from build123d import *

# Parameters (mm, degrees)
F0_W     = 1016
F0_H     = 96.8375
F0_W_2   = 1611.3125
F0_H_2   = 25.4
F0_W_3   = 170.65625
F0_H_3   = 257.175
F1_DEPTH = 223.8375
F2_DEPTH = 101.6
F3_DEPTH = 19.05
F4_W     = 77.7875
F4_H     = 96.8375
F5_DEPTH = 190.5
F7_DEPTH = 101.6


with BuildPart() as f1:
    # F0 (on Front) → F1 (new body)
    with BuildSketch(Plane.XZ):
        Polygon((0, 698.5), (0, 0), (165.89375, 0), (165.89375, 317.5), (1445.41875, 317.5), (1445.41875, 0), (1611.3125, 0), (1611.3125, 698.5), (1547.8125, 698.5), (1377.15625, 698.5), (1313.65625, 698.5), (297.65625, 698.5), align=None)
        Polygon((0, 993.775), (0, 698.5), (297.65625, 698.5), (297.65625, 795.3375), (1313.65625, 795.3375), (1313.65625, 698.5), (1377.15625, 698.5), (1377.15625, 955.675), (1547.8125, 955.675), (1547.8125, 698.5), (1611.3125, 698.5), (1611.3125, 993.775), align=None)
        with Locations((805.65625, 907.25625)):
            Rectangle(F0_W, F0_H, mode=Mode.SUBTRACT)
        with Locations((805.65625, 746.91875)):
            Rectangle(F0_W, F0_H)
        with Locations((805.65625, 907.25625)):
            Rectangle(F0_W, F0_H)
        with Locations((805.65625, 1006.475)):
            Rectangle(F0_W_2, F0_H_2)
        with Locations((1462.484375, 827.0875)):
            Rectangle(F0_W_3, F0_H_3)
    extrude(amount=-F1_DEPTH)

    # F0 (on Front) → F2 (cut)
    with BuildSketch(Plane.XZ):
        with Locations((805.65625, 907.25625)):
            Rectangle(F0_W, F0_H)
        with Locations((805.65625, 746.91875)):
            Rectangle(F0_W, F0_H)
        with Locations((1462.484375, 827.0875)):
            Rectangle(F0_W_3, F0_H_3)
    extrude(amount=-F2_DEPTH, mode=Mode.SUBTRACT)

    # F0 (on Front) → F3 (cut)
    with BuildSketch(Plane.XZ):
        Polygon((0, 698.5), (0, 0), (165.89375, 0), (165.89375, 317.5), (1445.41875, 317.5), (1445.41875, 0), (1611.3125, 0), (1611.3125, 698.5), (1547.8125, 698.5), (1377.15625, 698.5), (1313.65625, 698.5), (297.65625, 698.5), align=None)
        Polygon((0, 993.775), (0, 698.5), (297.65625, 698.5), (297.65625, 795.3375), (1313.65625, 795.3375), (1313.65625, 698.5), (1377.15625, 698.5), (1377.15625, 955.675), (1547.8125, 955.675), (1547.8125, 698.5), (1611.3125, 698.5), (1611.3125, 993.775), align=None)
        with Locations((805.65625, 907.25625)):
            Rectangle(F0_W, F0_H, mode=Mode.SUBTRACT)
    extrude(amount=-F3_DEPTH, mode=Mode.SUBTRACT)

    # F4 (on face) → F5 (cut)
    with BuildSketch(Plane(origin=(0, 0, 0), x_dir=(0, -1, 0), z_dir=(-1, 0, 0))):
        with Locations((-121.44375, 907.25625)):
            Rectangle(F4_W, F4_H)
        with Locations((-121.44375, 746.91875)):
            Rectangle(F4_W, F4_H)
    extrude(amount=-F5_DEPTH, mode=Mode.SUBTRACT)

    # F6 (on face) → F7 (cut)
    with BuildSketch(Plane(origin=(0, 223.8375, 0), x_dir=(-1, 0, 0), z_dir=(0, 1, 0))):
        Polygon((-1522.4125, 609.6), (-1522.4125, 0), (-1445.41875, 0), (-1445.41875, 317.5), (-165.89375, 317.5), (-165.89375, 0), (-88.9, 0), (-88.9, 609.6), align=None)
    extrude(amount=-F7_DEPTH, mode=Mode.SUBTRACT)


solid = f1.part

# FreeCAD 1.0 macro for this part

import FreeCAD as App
import Part
import Sketcher
from FreeCAD import Vector
Q = App.Units.Quantity

doc = App.newDocument("Part")
body = doc.addObject("PartDesign::Body", "Body")

# Sketch on XZ plane
sketch1 = body.newObject("Sketcher::SketchObject", "Sketch")
sketch1.AttachmentSupport = (doc.getObject("XZ_Plane"), [""])
sketch1.MapMode = "FlatFace"
sketch1.addGeometry([
    Part.LineSegment(Vector(0, 0, 0), Vector(166, 0, 0)),  # 0
    Part.LineSegment(Vector(166, 0, 0), Vector(166, 318, 0)),  # 1
    Part.LineSegment(Vector(166, 318, 0), Vector(1445, 318, 0)),  # 2
    Part.LineSegment(Vector(1445, 318, 0), Vector(1445, 0, 0)),  # 3
    Part.LineSegment(Vector(1445, 0, 0), Vector(1611, 0, 0)),  # 4
    Part.LineSegment(Vector(1611, 0, 0), Vector(1611, 1019, 0)),  # 5
    Part.LineSegment(Vector(1611, 1019, 0), Vector(0, 1019, 0)),  # 6
    Part.LineSegment(Vector(0, 1019, 0), Vector(0, 0, 0)),  # 7
], False)
sketch1.addConstraint([
    Sketcher.Constraint("Coincident", 0, 2, 1, 1),
    Sketcher.Constraint("Coincident", 1, 2, 2, 1),
    Sketcher.Constraint("Coincident", 2, 2, 3, 1),
    Sketcher.Constraint("Coincident", 3, 2, 4, 1),
    Sketcher.Constraint("Coincident", 4, 2, 5, 1),
    Sketcher.Constraint("Coincident", 5, 2, 6, 1),
    Sketcher.Constraint("Coincident", 6, 2, 7, 1),
    Sketcher.Constraint("Coincident", 7, 2, 0, 1),
    Sketcher.Constraint("Horizontal", 0),
    Sketcher.Constraint("Vertical", 1),
    Sketcher.Constraint("Horizontal", 2),
    Sketcher.Constraint("Vertical", 3),
    Sketcher.Constraint("Horizontal", 4),
    Sketcher.Constraint("Vertical", 5),
    Sketcher.Constraint("Horizontal", 6),
    Sketcher.Constraint("Vertical", 7),
    Sketcher.Constraint("Coincident", 7, 2, -1, 1),
    Sketcher.Constraint("PointOnObject", 3, 2, -1),
    Sketcher.Constraint("Equal", 0, 4),
    Sketcher.Constraint("DistanceY", 1, 1, 1, 2, Q("12.5 in")),
    Sketcher.Constraint("DistanceX", 0, 1, 0, 2, Q("6.53125 in")),
    Sketcher.Constraint("DistanceX", 2, 1, 2, 2, Q("50.375 in")),
    Sketcher.Constraint("DistanceY", 5, 1, 5, 2, Q("40.125 in")),
])
pad1 = body.newObject("PartDesign::Pad", "Pad")
pad1.Profile = sketch1
pad1.Length = Q("8.8125 in")
pad1.Reversed = True

# Sketch on XZ plane
sketch2 = body.newObject("Sketcher::SketchObject", "Sketch001")
sketch2.AttachmentSupport = (doc.getObject("XZ_Plane"), [""])
sketch2.MapMode = "FlatFace"
sketch2.addGeometry([
    Part.LineSegment(Vector(298, 956, 0), Vector(298, 859, 0)),  # 0
    Part.LineSegment(Vector(298, 859, 0), Vector(1314, 859, 0)),  # 1
    Part.LineSegment(Vector(1314, 859, 0), Vector(1314, 956, 0)),  # 2
    Part.LineSegment(Vector(1314, 956, 0), Vector(298, 956, 0)),  # 3
    Part.LineSegment(Vector(298, 795, 0), Vector(298, 698, 0)),  # 4
    Part.LineSegment(Vector(298, 698, 0), Vector(1314, 698, 0)),  # 5
    Part.LineSegment(Vector(1314, 698, 0), Vector(1314, 795, 0)),  # 6
    Part.LineSegment(Vector(1314, 795, 0), Vector(298, 795, 0)),  # 7
    Part.LineSegment(Vector(1377, 956, 0), Vector(1377, 698, 0)),  # 8
    Part.LineSegment(Vector(1377, 698, 0), Vector(1548, 698, 0)),  # 9
    Part.LineSegment(Vector(1548, 698, 0), Vector(1548, 956, 0)),  # 10
    Part.LineSegment(Vector(1548, 956, 0), Vector(1377, 956, 0)),  # 11
], False)
sketch2.addConstraint([
    Sketcher.Constraint("Coincident", 0, 2, 1, 1),
    Sketcher.Constraint("Coincident", 1, 2, 2, 1),
    Sketcher.Constraint("Coincident", 2, 2, 3, 1),
    Sketcher.Constraint("Coincident", 3, 2, 0, 1),
    Sketcher.Constraint("Coincident", 4, 2, 5, 1),
    Sketcher.Constraint("Coincident", 5, 2, 6, 1),
    Sketcher.Constraint("Coincident", 6, 2, 7, 1),
    Sketcher.Constraint("Coincident", 7, 2, 4, 1),
    Sketcher.Constraint("Coincident", 8, 2, 9, 1),
    Sketcher.Constraint("Coincident", 9, 2, 10, 1),
    Sketcher.Constraint("Coincident", 10, 2, 11, 1),
    Sketcher.Constraint("Coincident", 11, 2, 8, 1),
    Sketcher.Constraint("Vertical", 0),
    Sketcher.Constraint("Horizontal", 1),
    Sketcher.Constraint("Vertical", 2),
    Sketcher.Constraint("Horizontal", 3),
    Sketcher.Constraint("Vertical", 4),
    Sketcher.Constraint("Horizontal", 5),
    Sketcher.Constraint("Vertical", 6),
    Sketcher.Constraint("Horizontal", 7),
    Sketcher.Constraint("Vertical", 8),
    Sketcher.Constraint("Horizontal", 9),
    Sketcher.Constraint("Vertical", 10),
    Sketcher.Constraint("Horizontal", 11),
    Sketcher.Constraint("Horizontal", 5, 2, 8, 2),
    Sketcher.Constraint("Horizontal", 3, 2, 10, 2),
    Sketcher.Constraint("Vertical", 3, 2, 4, 2),
    Sketcher.Constraint("Vertical", 2, 2, 5, 2),
    Sketcher.Constraint("Equal", 2, 4),
    Sketcher.Constraint("DistanceX", 1, 1, 1, 2, Q("40 in")),
    Sketcher.Constraint("DistanceY", -1, 1, 4, 2, Q("27.5 in")),
    Sketcher.Constraint("DistanceY", 6, 2, 1, 2, Q("2.5 in")),
    Sketcher.Constraint("DistanceX", 5, 2, 8, 2, Q("2.5 in")),
    Sketcher.Constraint("DistanceX", 9, 1, 9, 2, Q("6.71875 in")),
    Sketcher.Constraint("DistanceY", 0, 2, 0, 1, Q("3.8125 in")),
    Sketcher.Constraint("DistanceX", -1, 1, 0, 2, Q("11.71875 in")),
])
pocket1 = body.newObject("PartDesign::Pocket", "Pocket")
pocket1.Profile = sketch2
pocket1.Length = Q("4 in")

# Sketch on XZ plane
sketch3 = body.newObject("Sketcher::SketchObject", "Sketch002")
sketch3.AttachmentSupport = (doc.getObject("XZ_Plane"), [""])
sketch3.MapMode = "FlatFace"
sketch3.addGeometry([
    Part.LineSegment(Vector(0, 0, 0), Vector(166, 0, 0)),  # 0
    Part.LineSegment(Vector(166, 0, 0), Vector(166, 318, 0)),  # 1
    Part.LineSegment(Vector(166, 318, 0), Vector(1445, 318, 0)),  # 2
    Part.LineSegment(Vector(1445, 318, 0), Vector(1445, 0, 0)),  # 3
    Part.LineSegment(Vector(1445, 0, 0), Vector(1611, 0, 0)),  # 4
    Part.LineSegment(Vector(1611, 0, 0), Vector(1611, 994, 0)),  # 5
    Part.LineSegment(Vector(1611, 994, 0), Vector(0, 994, 0)),  # 6
    Part.LineSegment(Vector(0, 994, 0), Vector(0, 0, 0)),  # 7
    Part.LineSegment(Vector(1314, 698, 0), Vector(298, 698, 0)),  # 8
    Part.LineSegment(Vector(298, 698, 0), Vector(298, 795, 0)),  # 9
    Part.LineSegment(Vector(298, 795, 0), Vector(1314, 795, 0)),  # 10
    Part.LineSegment(Vector(1314, 795, 0), Vector(1314, 698, 0)),  # 11
    Part.LineSegment(Vector(1314, 859, 0), Vector(298, 859, 0)),  # 12
    Part.LineSegment(Vector(298, 859, 0), Vector(298, 956, 0)),  # 13
    Part.LineSegment(Vector(298, 956, 0), Vector(1314, 956, 0)),  # 14
    Part.LineSegment(Vector(1314, 956, 0), Vector(1314, 859, 0)),  # 15
    Part.LineSegment(Vector(1548, 698, 0), Vector(1377, 698, 0)),  # 16
    Part.LineSegment(Vector(1377, 698, 0), Vector(1377, 956, 0)),  # 17
    Part.LineSegment(Vector(1377, 956, 0), Vector(1548, 956, 0)),  # 18
    Part.LineSegment(Vector(1548, 956, 0), Vector(1548, 698, 0)),  # 19
], False)
sketch3.addConstraint([
    Sketcher.Constraint("Coincident", 0, 2, 1, 1),
    Sketcher.Constraint("Coincident", 1, 2, 2, 1),
    Sketcher.Constraint("Coincident", 2, 2, 3, 1),
    Sketcher.Constraint("Coincident", 3, 2, 4, 1),
    Sketcher.Constraint("Coincident", 4, 2, 5, 1),
    Sketcher.Constraint("Coincident", 5, 2, 6, 1),
    Sketcher.Constraint("Coincident", 6, 2, 7, 1),
    Sketcher.Constraint("Coincident", 7, 2, 0, 1),
    Sketcher.Constraint("Coincident", 8, 2, 9, 1),
    Sketcher.Constraint("Coincident", 9, 2, 10, 1),
    Sketcher.Constraint("Coincident", 10, 2, 11, 1),
    Sketcher.Constraint("Coincident", 11, 2, 8, 1),
    Sketcher.Constraint("Coincident", 12, 2, 13, 1),
    Sketcher.Constraint("Coincident", 13, 2, 14, 1),
    Sketcher.Constraint("Coincident", 14, 2, 15, 1),
    Sketcher.Constraint("Coincident", 15, 2, 12, 1),
    Sketcher.Constraint("Coincident", 16, 2, 17, 1),
    Sketcher.Constraint("Coincident", 17, 2, 18, 1),
    Sketcher.Constraint("Coincident", 18, 2, 19, 1),
    Sketcher.Constraint("Coincident", 19, 2, 16, 1),
    Sketcher.Constraint("Horizontal", 0),
    Sketcher.Constraint("Vertical", 1),
    Sketcher.Constraint("Horizontal", 2),
    Sketcher.Constraint("Vertical", 3),
    Sketcher.Constraint("Horizontal", 4),
    Sketcher.Constraint("Vertical", 5),
    Sketcher.Constraint("Horizontal", 6),
    Sketcher.Constraint("Vertical", 7),
    Sketcher.Constraint("Horizontal", 8),
    Sketcher.Constraint("Vertical", 9),
    Sketcher.Constraint("Horizontal", 10),
    Sketcher.Constraint("Vertical", 11),
    Sketcher.Constraint("Horizontal", 12),
    Sketcher.Constraint("Vertical", 13),
    Sketcher.Constraint("Horizontal", 14),
    Sketcher.Constraint("Vertical", 15),
    Sketcher.Constraint("Horizontal", 16),
    Sketcher.Constraint("Vertical", 17),
    Sketcher.Constraint("Horizontal", 18),
    Sketcher.Constraint("Vertical", 19),
    Sketcher.Constraint("Coincident", 7, 2, -1, 1),
    Sketcher.Constraint("PointOnObject", 3, 2, -1),
    Sketcher.Constraint("Horizontal", 11, 2, 16, 2),
    Sketcher.Constraint("Horizontal", 14, 2, 17, 2),
    Sketcher.Constraint("Vertical", 9, 2, 12, 2),
    Sketcher.Constraint("Vertical", 11, 2, 14, 2),
    Sketcher.Constraint("Equal", 0, 4),
    Sketcher.Constraint("Equal", 11, 13),
    Sketcher.Constraint("DistanceX", 8, 2, 8, 1, Q("40 in")),
    Sketcher.Constraint("DistanceY", 1, 1, 1, 2, Q("12.5 in")),
    Sketcher.Constraint("DistanceY", 1, 2, 8, 2, Q("15 in")),
    Sketcher.Constraint("DistanceY", 9, 2, 12, 2, Q("2.5 in")),
    Sketcher.Constraint("DistanceY", 13, 2, 6, 2, Q("1.5 in")),
    Sketcher.Constraint("DistanceX", 11, 2, 16, 2, Q("2.5 in")),
    Sketcher.Constraint("DistanceX", 18, 2, 5, 2, Q("2.5 in")),
    Sketcher.Constraint("DistanceX", 0, 1, 0, 2, Q("6.53125 in")),
    Sketcher.Constraint("DistanceX", 2, 1, 2, 2, Q("50.375 in")),
    Sketcher.Constraint("DistanceX", 16, 2, 16, 1, Q("6.71875 in")),
    Sketcher.Constraint("DistanceY", 5, 1, 5, 2, Q("39.125 in")),
])
pocket2 = body.newObject("PartDesign::Pocket", "Pocket001")
pocket2.Profile = sketch3
pocket2.Length = Q("0.75 in")

# Sketch on YZ plane
sketch4 = body.newObject("Sketcher::SketchObject", "Sketch003")
sketch4.AttachmentSupport = (doc.getObject("YZ_Plane"), [""])
sketch4.MapMode = "FlatFace"
sketch4.addGeometry([
    Part.LineSegment(Vector(160, 956, 0), Vector(160, 859, 0)),  # 0
    Part.LineSegment(Vector(160, 859, 0), Vector(83, 859, 0)),  # 1
    Part.LineSegment(Vector(83, 859, 0), Vector(83, 956, 0)),  # 2
    Part.LineSegment(Vector(83, 956, 0), Vector(160, 956, 0)),  # 3
    Part.LineSegment(Vector(160, 795, 0), Vector(160, 698, 0)),  # 4
    Part.LineSegment(Vector(160, 698, 0), Vector(83, 698, 0)),  # 5
    Part.LineSegment(Vector(83, 698, 0), Vector(83, 795, 0)),  # 6
    Part.LineSegment(Vector(83, 795, 0), Vector(160, 795, 0)),  # 7
], False)
sketch4.addConstraint([
    Sketcher.Constraint("Coincident", 0, 2, 1, 1),
    Sketcher.Constraint("Coincident", 1, 2, 2, 1),
    Sketcher.Constraint("Coincident", 2, 2, 3, 1),
    Sketcher.Constraint("Coincident", 3, 2, 0, 1),
    Sketcher.Constraint("Coincident", 4, 2, 5, 1),
    Sketcher.Constraint("Coincident", 5, 2, 6, 1),
    Sketcher.Constraint("Coincident", 6, 2, 7, 1),
    Sketcher.Constraint("Coincident", 7, 2, 4, 1),
    Sketcher.Constraint("Vertical", 0),
    Sketcher.Constraint("Horizontal", 1),
    Sketcher.Constraint("Vertical", 2),
    Sketcher.Constraint("Horizontal", 3),
    Sketcher.Constraint("Vertical", 4),
    Sketcher.Constraint("Horizontal", 5),
    Sketcher.Constraint("Vertical", 6),
    Sketcher.Constraint("Horizontal", 7),
    Sketcher.Constraint("Vertical", 3, 2, 4, 2),
    Sketcher.Constraint("Vertical", 2, 2, 5, 2),
    Sketcher.Constraint("Equal", 2, 4),
    Sketcher.Constraint("DistanceY", -1, 1, 4, 2, Q("27.5 in")),
    Sketcher.Constraint("DistanceY", 6, 2, 1, 2, Q("2.5 in")),
    Sketcher.Constraint("DistanceX", 1, 2, 1, 1, Q("3.0625 in")),
    Sketcher.Constraint("DistanceY", 0, 2, 0, 1, Q("3.8125 in")),
    Sketcher.Constraint("DistanceX", -1, 1, 1, 2, Q("3.25 in")),
])
pocket3 = body.newObject("PartDesign::Pocket", "Pocket002")
pocket3.Profile = sketch4
pocket3.Length = Q("7.5 in")
pocket3.Reversed = True

# Sketch on XZ plane
sketch5 = body.newObject("Sketcher::SketchObject", "Sketch004")
sketch5.AttachmentSupport = (doc.getObject("XZ_Plane"), [""])
sketch5.MapMode = "FlatFace"
sketch5.AttachmentOffset = App.Placement(Vector(0, 0, -8.8125 * 25.4), App.Rotation())
sketch5.addGeometry([
    Part.LineSegment(Vector(1522, 610, 0), Vector(1522, 0, 0)),  # 0
    Part.LineSegment(Vector(1522, 0, 0), Vector(1445, 0, 0)),  # 1
    Part.LineSegment(Vector(1445, 0, 0), Vector(1445, 318, 0)),  # 2
    Part.LineSegment(Vector(1445, 318, 0), Vector(166, 318, 0)),  # 3
    Part.LineSegment(Vector(166, 318, 0), Vector(166, 0, 0)),  # 4
    Part.LineSegment(Vector(166, 0, 0), Vector(89, 0, 0)),  # 5
    Part.LineSegment(Vector(89, 0, 0), Vector(89, 610, 0)),  # 6
    Part.LineSegment(Vector(89, 610, 0), Vector(1522, 610, 0)),  # 7
], False)
sketch5.addConstraint([
    Sketcher.Constraint("Coincident", 0, 2, 1, 1),
    Sketcher.Constraint("Coincident", 1, 2, 2, 1),
    Sketcher.Constraint("Coincident", 2, 2, 3, 1),
    Sketcher.Constraint("Coincident", 3, 2, 4, 1),
    Sketcher.Constraint("Coincident", 4, 2, 5, 1),
    Sketcher.Constraint("Coincident", 5, 2, 6, 1),
    Sketcher.Constraint("Coincident", 6, 2, 7, 1),
    Sketcher.Constraint("Coincident", 7, 2, 0, 1),
    Sketcher.Constraint("Vertical", 0),
    Sketcher.Constraint("Horizontal", 1),
    Sketcher.Constraint("Vertical", 2),
    Sketcher.Constraint("Horizontal", 3),
    Sketcher.Constraint("Vertical", 4),
    Sketcher.Constraint("Horizontal", 5),
    Sketcher.Constraint("Vertical", 6),
    Sketcher.Constraint("Horizontal", 7),
    Sketcher.Constraint("PointOnObject", 0, 2, -1),
    Sketcher.Constraint("PointOnObject", 4, 2, -1),
    Sketcher.Constraint("Equal", 1, 5),
    Sketcher.Constraint("DistanceY", 0, 2, 0, 1, Q("24 in")),
    Sketcher.Constraint("DistanceY", 2, 1, 2, 2, Q("12.5 in")),
    Sketcher.Constraint("DistanceX", -1, 1, 5, 2, Q("3.5 in")),
    Sketcher.Constraint("DistanceX", 1, 2, 1, 1, Q("3.03125 in")),
    Sketcher.Constraint("DistanceX", 3, 2, 3, 1, Q("50.375 in")),
])
pocket4 = body.newObject("PartDesign::Pocket", "Pocket003")
pocket4.Profile = sketch5
pocket4.Length = Q("4 in")
pocket4.Reversed = True

doc.recompute()
